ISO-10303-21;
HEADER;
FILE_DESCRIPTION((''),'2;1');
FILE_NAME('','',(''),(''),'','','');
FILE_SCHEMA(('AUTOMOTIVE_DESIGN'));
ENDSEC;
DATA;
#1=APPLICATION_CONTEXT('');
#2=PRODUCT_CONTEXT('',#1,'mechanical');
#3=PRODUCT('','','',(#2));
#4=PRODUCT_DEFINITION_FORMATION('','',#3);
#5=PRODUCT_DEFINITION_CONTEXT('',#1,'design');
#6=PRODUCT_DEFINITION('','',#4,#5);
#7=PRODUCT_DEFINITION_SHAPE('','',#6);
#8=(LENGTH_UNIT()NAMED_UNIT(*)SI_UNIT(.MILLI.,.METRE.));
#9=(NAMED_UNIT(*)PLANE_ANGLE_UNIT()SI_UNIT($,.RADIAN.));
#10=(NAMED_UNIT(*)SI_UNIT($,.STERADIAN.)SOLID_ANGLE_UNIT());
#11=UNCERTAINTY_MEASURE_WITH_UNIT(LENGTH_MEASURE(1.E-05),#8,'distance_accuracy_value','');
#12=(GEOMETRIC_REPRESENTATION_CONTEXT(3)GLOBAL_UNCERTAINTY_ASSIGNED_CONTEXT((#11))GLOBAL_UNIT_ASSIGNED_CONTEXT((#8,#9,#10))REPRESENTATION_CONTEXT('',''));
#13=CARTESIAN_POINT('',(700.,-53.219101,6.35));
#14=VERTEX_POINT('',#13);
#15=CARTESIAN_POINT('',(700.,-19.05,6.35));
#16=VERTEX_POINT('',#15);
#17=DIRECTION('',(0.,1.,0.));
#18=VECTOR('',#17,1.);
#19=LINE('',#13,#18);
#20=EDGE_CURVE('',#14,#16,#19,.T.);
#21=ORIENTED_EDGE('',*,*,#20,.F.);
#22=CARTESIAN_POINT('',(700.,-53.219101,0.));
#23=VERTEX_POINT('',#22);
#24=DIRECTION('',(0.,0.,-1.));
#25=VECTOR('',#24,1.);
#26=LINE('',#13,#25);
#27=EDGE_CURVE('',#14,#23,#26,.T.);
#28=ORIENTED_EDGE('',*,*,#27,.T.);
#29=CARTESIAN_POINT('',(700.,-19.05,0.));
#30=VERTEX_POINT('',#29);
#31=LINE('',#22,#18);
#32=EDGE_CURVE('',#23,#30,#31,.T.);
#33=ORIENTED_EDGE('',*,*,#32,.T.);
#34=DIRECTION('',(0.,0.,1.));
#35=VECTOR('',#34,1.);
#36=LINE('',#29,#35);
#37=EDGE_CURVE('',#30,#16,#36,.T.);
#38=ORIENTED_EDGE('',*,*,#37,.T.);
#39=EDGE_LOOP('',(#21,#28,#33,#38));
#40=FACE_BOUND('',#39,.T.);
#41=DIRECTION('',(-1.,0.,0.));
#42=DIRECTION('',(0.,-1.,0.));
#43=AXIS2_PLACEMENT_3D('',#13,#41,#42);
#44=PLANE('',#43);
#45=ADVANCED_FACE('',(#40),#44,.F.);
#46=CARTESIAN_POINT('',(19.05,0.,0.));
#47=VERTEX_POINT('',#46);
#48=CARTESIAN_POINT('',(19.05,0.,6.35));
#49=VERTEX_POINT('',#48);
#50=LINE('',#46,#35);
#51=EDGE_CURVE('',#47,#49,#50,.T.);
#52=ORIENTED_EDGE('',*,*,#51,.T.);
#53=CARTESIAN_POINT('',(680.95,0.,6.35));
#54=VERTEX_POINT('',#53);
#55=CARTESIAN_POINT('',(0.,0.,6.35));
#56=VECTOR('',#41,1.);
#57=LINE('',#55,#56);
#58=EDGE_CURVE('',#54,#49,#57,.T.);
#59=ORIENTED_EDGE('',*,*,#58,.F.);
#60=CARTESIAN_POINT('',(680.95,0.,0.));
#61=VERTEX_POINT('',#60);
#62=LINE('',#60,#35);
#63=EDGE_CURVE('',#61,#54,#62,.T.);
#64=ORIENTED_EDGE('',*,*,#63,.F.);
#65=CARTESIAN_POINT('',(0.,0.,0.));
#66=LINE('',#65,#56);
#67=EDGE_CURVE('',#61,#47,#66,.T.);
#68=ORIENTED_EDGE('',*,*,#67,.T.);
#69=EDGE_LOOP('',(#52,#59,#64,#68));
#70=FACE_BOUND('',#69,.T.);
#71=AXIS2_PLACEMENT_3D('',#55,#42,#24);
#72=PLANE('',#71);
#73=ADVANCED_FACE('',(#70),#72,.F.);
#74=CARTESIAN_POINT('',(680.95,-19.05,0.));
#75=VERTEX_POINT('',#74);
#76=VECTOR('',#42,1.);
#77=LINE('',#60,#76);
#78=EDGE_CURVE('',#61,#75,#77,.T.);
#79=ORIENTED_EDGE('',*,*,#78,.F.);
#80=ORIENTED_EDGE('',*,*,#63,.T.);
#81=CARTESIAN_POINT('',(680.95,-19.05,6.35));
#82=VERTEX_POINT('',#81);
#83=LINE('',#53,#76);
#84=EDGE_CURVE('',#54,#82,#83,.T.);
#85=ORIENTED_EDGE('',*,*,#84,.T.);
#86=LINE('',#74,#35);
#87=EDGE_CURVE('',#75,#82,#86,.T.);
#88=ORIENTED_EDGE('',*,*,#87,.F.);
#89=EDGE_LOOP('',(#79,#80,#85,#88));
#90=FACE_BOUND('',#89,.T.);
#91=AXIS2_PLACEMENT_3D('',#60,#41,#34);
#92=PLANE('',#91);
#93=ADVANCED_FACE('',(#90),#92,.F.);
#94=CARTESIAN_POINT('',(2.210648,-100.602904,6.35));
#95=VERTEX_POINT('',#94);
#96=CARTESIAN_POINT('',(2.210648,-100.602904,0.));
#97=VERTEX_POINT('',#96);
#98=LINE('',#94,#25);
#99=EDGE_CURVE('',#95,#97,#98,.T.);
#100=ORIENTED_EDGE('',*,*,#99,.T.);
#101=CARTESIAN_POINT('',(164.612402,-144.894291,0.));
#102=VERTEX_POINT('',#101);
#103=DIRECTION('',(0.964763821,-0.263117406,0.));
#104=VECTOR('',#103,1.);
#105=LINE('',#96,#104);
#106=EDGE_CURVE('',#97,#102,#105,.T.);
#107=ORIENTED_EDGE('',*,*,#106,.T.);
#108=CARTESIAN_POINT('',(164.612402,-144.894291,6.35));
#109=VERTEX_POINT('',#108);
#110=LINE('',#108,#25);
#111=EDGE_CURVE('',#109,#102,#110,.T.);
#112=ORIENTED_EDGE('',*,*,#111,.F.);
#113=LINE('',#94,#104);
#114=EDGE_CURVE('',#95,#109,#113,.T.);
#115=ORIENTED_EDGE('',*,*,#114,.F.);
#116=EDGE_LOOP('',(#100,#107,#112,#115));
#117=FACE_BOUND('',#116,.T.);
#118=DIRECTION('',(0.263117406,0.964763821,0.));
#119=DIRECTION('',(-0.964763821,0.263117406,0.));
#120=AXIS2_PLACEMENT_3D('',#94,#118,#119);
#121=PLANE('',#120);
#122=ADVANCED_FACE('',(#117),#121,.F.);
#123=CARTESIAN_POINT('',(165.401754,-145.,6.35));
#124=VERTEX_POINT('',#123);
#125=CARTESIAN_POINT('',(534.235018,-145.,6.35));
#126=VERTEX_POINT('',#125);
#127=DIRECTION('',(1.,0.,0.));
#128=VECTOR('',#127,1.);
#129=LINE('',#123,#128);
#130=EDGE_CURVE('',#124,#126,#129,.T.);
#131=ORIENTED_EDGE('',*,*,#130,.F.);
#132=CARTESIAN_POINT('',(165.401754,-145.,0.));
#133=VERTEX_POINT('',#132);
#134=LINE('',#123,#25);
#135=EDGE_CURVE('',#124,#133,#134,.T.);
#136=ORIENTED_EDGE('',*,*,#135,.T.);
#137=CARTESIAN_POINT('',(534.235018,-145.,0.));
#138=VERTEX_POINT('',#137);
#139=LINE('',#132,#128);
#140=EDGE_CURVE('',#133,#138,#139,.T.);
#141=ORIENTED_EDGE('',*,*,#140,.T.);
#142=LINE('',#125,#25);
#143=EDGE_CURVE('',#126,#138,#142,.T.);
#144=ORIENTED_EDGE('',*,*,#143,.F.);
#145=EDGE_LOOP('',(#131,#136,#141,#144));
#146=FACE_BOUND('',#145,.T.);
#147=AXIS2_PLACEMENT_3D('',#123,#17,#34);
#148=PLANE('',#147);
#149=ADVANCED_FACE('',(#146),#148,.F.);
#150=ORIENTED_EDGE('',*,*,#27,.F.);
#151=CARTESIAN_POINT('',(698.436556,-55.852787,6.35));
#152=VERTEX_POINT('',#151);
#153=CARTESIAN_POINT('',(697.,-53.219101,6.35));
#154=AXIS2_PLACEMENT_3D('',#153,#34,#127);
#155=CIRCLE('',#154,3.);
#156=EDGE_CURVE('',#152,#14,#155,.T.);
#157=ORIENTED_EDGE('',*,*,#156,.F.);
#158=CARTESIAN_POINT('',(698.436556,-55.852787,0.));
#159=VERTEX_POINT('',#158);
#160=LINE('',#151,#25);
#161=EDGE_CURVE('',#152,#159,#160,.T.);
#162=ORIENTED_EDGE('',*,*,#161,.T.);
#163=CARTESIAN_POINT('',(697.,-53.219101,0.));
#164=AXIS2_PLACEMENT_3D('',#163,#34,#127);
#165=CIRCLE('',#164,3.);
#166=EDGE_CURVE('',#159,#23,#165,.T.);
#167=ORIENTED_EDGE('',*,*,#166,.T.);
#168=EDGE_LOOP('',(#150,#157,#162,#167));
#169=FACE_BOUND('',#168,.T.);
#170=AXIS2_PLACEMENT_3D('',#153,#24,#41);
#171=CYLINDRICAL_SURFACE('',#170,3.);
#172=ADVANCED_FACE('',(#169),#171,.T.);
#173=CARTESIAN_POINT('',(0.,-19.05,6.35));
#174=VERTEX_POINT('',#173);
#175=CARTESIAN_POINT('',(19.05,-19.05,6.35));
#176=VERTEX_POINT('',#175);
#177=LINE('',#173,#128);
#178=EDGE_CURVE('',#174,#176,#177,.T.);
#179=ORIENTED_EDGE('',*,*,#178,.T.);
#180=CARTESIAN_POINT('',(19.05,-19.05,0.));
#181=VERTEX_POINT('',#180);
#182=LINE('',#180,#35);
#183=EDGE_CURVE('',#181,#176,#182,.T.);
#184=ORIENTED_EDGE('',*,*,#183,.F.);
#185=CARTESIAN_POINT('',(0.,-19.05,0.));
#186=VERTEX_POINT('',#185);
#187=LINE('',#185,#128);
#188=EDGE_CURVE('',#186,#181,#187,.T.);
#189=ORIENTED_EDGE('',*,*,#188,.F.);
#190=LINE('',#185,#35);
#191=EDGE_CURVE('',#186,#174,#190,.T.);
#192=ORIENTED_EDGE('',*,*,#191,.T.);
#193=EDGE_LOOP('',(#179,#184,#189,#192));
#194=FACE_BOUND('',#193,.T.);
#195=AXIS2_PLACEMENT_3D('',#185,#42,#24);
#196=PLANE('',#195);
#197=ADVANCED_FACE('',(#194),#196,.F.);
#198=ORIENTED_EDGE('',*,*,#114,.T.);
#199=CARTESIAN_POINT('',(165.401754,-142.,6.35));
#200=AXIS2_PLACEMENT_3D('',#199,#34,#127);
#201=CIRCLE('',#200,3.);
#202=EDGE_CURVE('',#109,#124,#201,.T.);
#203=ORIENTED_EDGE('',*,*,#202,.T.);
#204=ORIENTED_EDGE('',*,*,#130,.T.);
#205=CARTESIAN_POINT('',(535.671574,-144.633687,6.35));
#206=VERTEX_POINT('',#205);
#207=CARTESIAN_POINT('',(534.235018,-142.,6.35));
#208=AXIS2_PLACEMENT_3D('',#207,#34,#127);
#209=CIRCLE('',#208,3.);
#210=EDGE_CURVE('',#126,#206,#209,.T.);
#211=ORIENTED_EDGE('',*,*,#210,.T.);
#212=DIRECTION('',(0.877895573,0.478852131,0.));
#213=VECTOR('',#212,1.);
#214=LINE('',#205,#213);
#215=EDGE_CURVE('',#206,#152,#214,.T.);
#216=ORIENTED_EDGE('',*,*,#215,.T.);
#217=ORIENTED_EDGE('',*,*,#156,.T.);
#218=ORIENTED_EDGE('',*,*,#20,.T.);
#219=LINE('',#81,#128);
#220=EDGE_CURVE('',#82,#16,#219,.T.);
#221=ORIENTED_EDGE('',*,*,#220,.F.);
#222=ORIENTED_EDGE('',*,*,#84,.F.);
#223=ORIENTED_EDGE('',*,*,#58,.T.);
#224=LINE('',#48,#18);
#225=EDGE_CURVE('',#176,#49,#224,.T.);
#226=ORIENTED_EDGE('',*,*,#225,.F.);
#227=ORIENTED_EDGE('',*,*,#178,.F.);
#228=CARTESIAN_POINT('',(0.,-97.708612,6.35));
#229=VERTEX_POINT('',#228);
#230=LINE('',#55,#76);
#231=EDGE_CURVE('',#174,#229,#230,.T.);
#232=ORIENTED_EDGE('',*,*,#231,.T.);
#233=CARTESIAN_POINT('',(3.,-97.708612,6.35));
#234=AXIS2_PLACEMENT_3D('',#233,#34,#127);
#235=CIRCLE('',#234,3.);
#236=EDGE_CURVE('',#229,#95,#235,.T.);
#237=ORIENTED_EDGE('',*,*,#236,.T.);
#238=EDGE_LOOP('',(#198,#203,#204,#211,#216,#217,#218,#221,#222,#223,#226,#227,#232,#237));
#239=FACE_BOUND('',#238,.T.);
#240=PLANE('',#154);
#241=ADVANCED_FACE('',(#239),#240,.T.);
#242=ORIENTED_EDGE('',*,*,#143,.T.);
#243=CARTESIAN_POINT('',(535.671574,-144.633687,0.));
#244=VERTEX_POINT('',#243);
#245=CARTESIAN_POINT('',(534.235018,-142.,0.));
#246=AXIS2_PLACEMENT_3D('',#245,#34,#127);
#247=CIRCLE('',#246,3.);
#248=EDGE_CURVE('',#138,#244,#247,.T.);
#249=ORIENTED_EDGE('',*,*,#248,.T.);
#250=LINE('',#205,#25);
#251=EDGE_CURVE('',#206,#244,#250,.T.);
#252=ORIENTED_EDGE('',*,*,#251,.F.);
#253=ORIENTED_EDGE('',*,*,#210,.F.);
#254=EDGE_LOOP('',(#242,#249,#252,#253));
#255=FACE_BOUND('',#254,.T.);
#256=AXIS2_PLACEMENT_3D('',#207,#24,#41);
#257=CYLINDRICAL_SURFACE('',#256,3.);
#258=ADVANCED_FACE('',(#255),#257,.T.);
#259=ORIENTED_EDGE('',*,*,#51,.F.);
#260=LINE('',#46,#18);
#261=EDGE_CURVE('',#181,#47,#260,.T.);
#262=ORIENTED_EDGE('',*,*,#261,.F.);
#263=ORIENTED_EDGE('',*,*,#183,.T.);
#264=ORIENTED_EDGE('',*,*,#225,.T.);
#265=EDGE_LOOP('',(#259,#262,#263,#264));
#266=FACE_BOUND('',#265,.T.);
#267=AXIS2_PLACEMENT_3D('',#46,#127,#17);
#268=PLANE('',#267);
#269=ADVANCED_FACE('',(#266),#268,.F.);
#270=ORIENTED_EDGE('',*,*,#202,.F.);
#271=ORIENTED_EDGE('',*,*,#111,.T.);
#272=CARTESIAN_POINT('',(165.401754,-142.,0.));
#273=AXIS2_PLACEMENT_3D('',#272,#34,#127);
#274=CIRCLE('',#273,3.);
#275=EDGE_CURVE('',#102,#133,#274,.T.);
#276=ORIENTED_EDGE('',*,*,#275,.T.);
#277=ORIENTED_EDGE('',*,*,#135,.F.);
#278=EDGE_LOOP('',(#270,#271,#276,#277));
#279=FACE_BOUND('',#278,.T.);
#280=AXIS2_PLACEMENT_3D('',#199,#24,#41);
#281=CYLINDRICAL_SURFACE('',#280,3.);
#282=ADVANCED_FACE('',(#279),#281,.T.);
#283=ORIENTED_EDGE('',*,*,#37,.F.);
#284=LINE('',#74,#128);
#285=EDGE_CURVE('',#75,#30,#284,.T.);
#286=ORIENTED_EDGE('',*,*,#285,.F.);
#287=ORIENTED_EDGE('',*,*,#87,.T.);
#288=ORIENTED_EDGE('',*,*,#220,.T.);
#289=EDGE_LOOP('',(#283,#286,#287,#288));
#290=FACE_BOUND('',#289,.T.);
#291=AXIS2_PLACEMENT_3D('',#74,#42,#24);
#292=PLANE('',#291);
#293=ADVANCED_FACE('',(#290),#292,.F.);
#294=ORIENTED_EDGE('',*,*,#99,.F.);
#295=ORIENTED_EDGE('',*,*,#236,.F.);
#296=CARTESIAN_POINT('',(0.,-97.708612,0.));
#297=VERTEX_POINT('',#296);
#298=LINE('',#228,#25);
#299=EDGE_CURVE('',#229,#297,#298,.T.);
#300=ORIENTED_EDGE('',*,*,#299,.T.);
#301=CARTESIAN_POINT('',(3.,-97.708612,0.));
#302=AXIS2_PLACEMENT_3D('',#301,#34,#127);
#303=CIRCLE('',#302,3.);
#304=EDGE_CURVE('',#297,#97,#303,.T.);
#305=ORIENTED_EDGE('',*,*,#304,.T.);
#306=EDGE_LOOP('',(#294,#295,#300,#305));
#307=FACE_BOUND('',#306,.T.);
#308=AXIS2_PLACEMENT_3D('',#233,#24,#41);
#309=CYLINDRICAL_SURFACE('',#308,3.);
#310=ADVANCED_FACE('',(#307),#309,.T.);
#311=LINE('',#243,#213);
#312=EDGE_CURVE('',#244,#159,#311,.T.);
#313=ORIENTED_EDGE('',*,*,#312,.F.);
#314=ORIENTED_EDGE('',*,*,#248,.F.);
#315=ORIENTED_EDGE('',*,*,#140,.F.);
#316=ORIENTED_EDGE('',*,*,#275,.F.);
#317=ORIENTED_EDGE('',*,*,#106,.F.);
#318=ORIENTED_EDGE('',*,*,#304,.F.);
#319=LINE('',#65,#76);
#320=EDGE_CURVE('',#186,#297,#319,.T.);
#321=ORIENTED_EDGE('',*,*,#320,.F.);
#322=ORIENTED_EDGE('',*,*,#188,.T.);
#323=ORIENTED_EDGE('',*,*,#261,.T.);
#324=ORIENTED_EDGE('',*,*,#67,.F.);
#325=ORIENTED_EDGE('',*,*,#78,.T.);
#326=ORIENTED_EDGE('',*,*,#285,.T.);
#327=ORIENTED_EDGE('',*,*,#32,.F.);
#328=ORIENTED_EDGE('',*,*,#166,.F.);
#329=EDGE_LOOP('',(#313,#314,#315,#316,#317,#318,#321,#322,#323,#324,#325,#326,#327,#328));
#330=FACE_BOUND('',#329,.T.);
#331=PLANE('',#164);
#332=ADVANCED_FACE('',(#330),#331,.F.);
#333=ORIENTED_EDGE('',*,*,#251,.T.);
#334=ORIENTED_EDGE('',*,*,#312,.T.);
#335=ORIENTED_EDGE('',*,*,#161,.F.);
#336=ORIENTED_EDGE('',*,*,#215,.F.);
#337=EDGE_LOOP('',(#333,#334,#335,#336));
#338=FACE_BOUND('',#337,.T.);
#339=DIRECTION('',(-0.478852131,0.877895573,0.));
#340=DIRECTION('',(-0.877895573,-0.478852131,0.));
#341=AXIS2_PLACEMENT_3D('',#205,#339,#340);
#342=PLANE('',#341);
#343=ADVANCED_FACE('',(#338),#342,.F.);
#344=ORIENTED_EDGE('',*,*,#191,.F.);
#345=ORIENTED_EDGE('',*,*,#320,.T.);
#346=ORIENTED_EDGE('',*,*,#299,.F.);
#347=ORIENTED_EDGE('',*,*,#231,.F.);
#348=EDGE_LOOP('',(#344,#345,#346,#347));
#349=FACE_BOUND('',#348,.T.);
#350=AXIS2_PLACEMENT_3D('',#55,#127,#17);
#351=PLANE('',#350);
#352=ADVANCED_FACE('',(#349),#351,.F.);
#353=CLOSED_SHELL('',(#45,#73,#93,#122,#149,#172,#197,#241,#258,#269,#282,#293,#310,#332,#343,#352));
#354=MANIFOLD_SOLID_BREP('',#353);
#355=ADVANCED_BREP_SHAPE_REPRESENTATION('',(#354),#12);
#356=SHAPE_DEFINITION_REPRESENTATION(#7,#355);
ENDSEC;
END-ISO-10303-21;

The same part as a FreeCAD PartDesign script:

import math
import FreeCAD as App
import Part
import Sketcher
from FreeCAD import Vector


def add_polygon(sketch, points):
    """Adds a closed chain of lines whose ends are joined by coincident constraints."""
    first, n = sketch.GeometryCount, len(points)
    for a, b in zip(points, points[1:] + points[:1]):
        sketch.addGeometry(Part.LineSegment(App.Vector(*a, 0), App.Vector(*b, 0)), False)
    for i in range(n):
        sketch.addConstraint(Sketcher.Constraint("Coincident", first + i, 2, first + (i + 1) % n, 1))

doc = App.newDocument("Part")
body = doc.addObject("PartDesign::Body", "Body")

# Sketch on XY plane
sketch1 = body.newObject("Sketcher::SketchObject", "Sketch")
sketch1.AttachmentSupport = (doc.getObject("XY_Plane"), [""])
sketch1.MapMode = "FlatFace"
sketch1.addGeometry(Part.LineSegment(Vector(700, -53.2, 0), Vector(700, 0, 0)), False)
sketch1.addGeometry(Part.LineSegment(Vector(700, 0, 0), Vector(0, 0, 0)), False)
sketch1.addGeometry(Part.LineSegment(Vector(0, 0, 0), Vector(0, -97.7, 0)), False)
sketch1.addGeometry(Part.ArcOfCircle(Part.Circle(Vector(3, -97.7, 0), Vector(0, 0, 1), 3), math.radians(180), math.radians(255)), False)
sketch1.addGeometry(Part.LineSegment(Vector(2.2, -100.6, 0), Vector(164.6, -144.9, 0)), False)
sketch1.addGeometry(Part.ArcOfCircle(Part.Circle(Vector(165.4, -142, 0), Vector(0, 0, 1), 3), math.radians(-105.26), math.radians(-90)), False)
sketch1.addGeometry(Part.LineSegment(Vector(165.4, -145, 0), Vector(534.2, -145, 0)), False)
sketch1.addGeometry(Part.ArcOfCircle(Part.Circle(Vector(534.2, -142, 0), Vector(0, 0, 1), 3), math.radians(-90), math.radians(-61)), False)
sketch1.addGeometry(Part.LineSegment(Vector(535.7, -144.6, 0), Vector(698.4, -55.9, 0)), False)
sketch1.addGeometry(Part.ArcOfCircle(Part.Circle(Vector(697, -53.2, 0), Vector(0, 0, 1), 3), math.radians(-61), math.radians(0)), False)
sketch1.addConstraint(Sketcher.Constraint("Coincident", 0, 2, 1, 1))
sketch1.addConstraint(Sketcher.Constraint("Coincident", 1, 2, 2, 1))
sketch1.addConstraint(Sketcher.Constraint("Tangent", 2, 2, 3, 1))
sketch1.addConstraint(Sketcher.Constraint("Tangent", 3, 2, 4, 1))
sketch1.addConstraint(Sketcher.Constraint("Tangent", 4, 2, 5, 1))
sketch1.addConstraint(Sketcher.Constraint("Tangent", 5, 2, 6, 1))
sketch1.addConstraint(Sketcher.Constraint("Tangent", 6, 2, 7, 1))
sketch1.addConstraint(Sketcher.Constraint("Tangent", 7, 2, 8, 1))
sketch1.addConstraint(Sketcher.Constraint("Tangent", 8, 2, 9, 1))
sketch1.addConstraint(Sketcher.Constraint("Tangent", 9, 2, 0, 1))
sketch1.addConstraint(Sketcher.Constraint("Vertical", 0))
sketch1.addConstraint(Sketcher.Constraint("Horizontal", 1))
sketch1.addConstraint(Sketcher.Constraint("Vertical", 2))
sketch1.addConstraint(Sketcher.Constraint("Horizontal", 6))
sketch1.addConstraint(Sketcher.Constraint("Coincident", 1, 2, -1, 1))
sketch1.addConstraint(Sketcher.Constraint("Equal", 3, 5))
sketch1.addConstraint(Sketcher.Constraint("Equal", 5, 7))
sketch1.addConstraint(Sketcher.Constraint("Equal", 7, 9))
sketch1.addConstraint(Sketcher.Constraint("Radius", 3, 3.0))
sketch1.addConstraint(Sketcher.Constraint("DistanceX", 1, 2, 1, 1, 700.0))
sketch1.addConstraint(Sketcher.Constraint("DistanceY", 5, 3, -1, 1, 142.0))
sketch1.addConstraint(Sketcher.Constraint("DistanceY", 0, 1, 0, 2, 53.219101))
sketch1.addConstraint(Sketcher.Constraint("Distance", 4, 168.333172))
sketch1.addConstraint(Sketcher.Constraint("Distance", 8, 185.40358))
sketch1.addConstraint(Sketcher.Constraint("DistanceX", 6, 1, 6, 2, 368.833264))
pad1 = body.newObject("PartDesign::Pad", "Pad")
pad1.Profile = sketch1
pad1.Length = 6.35

# Sketch on XY plane
sketch2 = body.newObject("Sketcher::SketchObject", "Sketch001")
sketch2.AttachmentSupport = (doc.getObject("XY_Plane"), [""])
sketch2.MapMode = "FlatFace"
sketch2.AttachmentOffset = App.Placement(Vector(0, 0, 6.35), App.Rotation())
add_polygon(sketch2, [(0, 0), (0, -19), (19, -19), (19, 0)])  # lines 0-3
add_polygon(sketch2, [(681, 0), (681, -19), (700, -19), (700, 0)])  # lines 4-7
sketch2.addConstraint(Sketcher.Constraint("Vertical", 0))
sketch2.addConstraint(Sketcher.Constraint("Horizontal", 1))
sketch2.addConstraint(Sketcher.Constraint("Vertical", 2))
sketch2.addConstraint(Sketcher.Constraint("Horizontal", 3))
sketch2.addConstraint(Sketcher.Constraint("Vertical", 4))
sketch2.addConstraint(Sketcher.Constraint("Horizontal", 5))
sketch2.addConstraint(Sketcher.Constraint("Vertical", 6))
sketch2.addConstraint(Sketcher.Constraint("Horizontal", 7))
sketch2.addConstraint(Sketcher.Constraint("Coincident", 3, 2, -1, 1))
sketch2.addConstraint(Sketcher.Constraint("PointOnObject", 6, 2, -1))
sketch2.addConstraint(Sketcher.Constraint("Horizontal", 1, 2, 4, 2))
sketch2.addConstraint(Sketcher.Constraint("Equal", 3, 5))
sketch2.addConstraint(Sketcher.Constraint("Equal", 7, 0))
sketch2.addConstraint(Sketcher.Constraint("DistanceX", -1, 1, 5, 2, 700.0))
sketch2.addConstraint(Sketcher.Constraint("DistanceX", 1, 1, 1, 2, 19.05))
pocket1 = body.newObject("PartDesign::Pocket", "Pocket")
pocket1.Profile = sketch2
pocket1.Type = "ThroughAll"

doc.recompute()
